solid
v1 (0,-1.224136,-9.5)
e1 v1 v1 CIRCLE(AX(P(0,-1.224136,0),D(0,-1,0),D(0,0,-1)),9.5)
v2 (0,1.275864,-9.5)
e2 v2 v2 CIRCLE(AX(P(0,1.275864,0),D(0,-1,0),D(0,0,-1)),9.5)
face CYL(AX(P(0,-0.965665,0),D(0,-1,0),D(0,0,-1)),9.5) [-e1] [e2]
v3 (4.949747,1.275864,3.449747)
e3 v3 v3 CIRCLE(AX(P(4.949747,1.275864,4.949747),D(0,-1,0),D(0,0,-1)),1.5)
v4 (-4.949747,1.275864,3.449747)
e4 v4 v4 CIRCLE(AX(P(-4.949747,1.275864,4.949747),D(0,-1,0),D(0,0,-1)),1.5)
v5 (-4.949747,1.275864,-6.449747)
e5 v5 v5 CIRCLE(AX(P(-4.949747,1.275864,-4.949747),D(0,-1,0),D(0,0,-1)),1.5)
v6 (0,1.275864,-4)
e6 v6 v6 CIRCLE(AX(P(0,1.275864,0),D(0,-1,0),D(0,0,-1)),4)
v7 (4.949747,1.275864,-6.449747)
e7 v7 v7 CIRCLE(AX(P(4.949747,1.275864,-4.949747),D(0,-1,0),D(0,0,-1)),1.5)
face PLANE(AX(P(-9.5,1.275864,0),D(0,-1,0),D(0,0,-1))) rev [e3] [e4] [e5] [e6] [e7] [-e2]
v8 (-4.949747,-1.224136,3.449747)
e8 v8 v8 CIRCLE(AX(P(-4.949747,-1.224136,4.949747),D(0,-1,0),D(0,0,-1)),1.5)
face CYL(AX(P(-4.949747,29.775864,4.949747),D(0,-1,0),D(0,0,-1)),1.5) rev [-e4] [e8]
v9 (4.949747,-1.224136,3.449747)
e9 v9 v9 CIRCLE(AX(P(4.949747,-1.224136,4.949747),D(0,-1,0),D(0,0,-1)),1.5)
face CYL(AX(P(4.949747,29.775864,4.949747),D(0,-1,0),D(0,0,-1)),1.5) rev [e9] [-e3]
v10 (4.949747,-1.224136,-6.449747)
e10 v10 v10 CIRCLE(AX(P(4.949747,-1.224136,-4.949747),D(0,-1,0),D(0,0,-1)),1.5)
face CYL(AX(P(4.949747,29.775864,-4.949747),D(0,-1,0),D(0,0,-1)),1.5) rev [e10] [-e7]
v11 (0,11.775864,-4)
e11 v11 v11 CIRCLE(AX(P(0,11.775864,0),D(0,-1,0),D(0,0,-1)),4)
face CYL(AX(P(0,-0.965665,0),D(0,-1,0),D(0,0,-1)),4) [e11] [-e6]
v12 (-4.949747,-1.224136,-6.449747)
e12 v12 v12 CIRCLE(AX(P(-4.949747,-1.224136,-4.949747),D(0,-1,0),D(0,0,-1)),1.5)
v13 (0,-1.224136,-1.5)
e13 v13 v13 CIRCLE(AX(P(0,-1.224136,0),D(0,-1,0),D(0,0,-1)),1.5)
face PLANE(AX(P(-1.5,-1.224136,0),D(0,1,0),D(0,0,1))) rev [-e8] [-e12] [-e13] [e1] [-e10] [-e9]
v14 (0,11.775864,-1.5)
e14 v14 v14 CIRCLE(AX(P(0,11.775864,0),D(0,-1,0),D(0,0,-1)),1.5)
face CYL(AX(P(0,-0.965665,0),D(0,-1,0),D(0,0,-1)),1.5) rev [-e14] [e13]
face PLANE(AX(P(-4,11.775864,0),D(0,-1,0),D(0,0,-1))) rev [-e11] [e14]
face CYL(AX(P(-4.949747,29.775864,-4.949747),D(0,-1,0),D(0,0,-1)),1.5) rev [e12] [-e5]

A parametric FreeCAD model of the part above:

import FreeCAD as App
import Part
import Sketcher
from FreeCAD import Vector


def add_polygon(sketch, points):
    """Adds a closed chain of lines whose ends are joined by coincident constraints."""
    first, n = sketch.GeometryCount, len(points)
    for a, b in zip(points, points[1:] + points[:1]):
        sketch.addGeometry(Part.LineSegment(App.Vector(*a, 0), App.Vector(*b, 0)), False)
    for i in range(n):
        sketch.addConstraint(Sketcher.Constraint("Coincident", first + i, 2, first + (i + 1) % n, 1))

doc = App.newDocument("Part")
body = doc.addObject("PartDesign::Body", "Body")

# Sketch on XY plane
sketch1 = body.newObject("Sketcher::SketchObject", "Sketch")
sketch1.AttachmentSupport = (doc.getObject("XY_Plane"), [""])
sketch1.MapMode = "FlatFace"
add_polygon(sketch1, [(-9.5, -1.2), (-1.5, -1.2), (-1.5, 11.8), (-4, 11.8), (-4, 1.3), (-9.5, 1.3)])  # lines 0-5
sketch1.addConstraint(Sketcher.Constraint("Horizontal", 0))
sketch1.addConstraint(Sketcher.Constraint("Vertical", 1))
sketch1.addConstraint(Sketcher.Constraint("Horizontal", 2))
sketch1.addConstraint(Sketcher.Constraint("Vertical", 3))
sketch1.addConstraint(Sketcher.Constraint("Horizontal", 4))
sketch1.addConstraint(Sketcher.Constraint("Vertical", 5))
sketch1.addConstraint(Sketcher.Constraint("Equal", 2, 5))
sketch1.addConstraint(Sketcher.Constraint("DistanceX", 0, 1, 0, 2, 8.0))
sketch1.addConstraint(Sketcher.Constraint("DistanceY", 1, 1, 1, 2, 13.0))
sketch1.addConstraint(Sketcher.Constraint("DistanceX", 2, 2, 2, 1, 2.5))
sketch1.addConstraint(Sketcher.Constraint("DistanceX", 2, 2, -1, 1, 4.0))
sketch1.addConstraint(Sketcher.Constraint("DistanceY", 0, 2, -1, 1, 1.224136))
revolution = body.newObject("PartDesign::Revolution", "Revolution")
revolution.Profile = sketch1
revolution.ReferenceAxis = (sketch1, ["V_Axis"])
revolution.Angle = 360

# Sketch on XZ plane
sketch2 = body.newObject("Sketcher::SketchObject", "Sketch001")
sketch2.AttachmentSupport = (doc.getObject("XZ_Plane"), [""])
sketch2.MapMode = "FlatFace"
sketch2.AttachmentOffset = App.Placement(Vector(0, 0, 1.224136), App.Rotation())
sketch2.addGeometry(Part.Circle(Vector(-4.9, 4.9, 0), Vector(0, 0, 1), 1.5), False)
sketch2.addGeometry(Part.Circle(Vector(4.9, 4.9, 0), Vector(0, 0, 1), 1.5), False)
sketch2.addGeometry(Part.Circle(Vector(4.9, -4.9, 0), Vector(0, 0, 1), 1.5), False)
sketch2.addGeometry(Part.Circle(Vector(-4.9, -4.9, 0), Vector(0, 0, 1), 1.5), False)
sketch2.addConstraint(Sketcher.Constraint("Equal", 0, 1))
sketch2.addConstraint(Sketcher.Constraint("Equal", 1, 2))
sketch2.addConstraint(Sketcher.Constraint("Equal", 2, 3))
sketch2.addConstraint(Sketcher.Constraint("Symmetric", 0, 3, 2, 3, -1, 1))
sketch2.addConstraint(Sketcher.Constraint("Symmetric", 1, 3, 3, 3, -1, 1))
sketch2.addConstraint(Sketcher.Constraint("Symmetric", 0, 3, 1, 3, -2))
sketch2.addConstraint(Sketcher.Constraint("Diameter", 0, 3.0))
sketch2.addConstraint(Sketcher.Constraint("DistanceX", 0, 3, -1, 1, 4.949747))
sketch2.addConstraint(Sketcher.Constraint("DistanceY", -1, 1, 0, 3, 4.949747))
pocket1 = body.newObject("PartDesign::Pocket", "Pocket")
pocket1.Profile = sketch2
pocket1.Length = 31

doc.recompute()
